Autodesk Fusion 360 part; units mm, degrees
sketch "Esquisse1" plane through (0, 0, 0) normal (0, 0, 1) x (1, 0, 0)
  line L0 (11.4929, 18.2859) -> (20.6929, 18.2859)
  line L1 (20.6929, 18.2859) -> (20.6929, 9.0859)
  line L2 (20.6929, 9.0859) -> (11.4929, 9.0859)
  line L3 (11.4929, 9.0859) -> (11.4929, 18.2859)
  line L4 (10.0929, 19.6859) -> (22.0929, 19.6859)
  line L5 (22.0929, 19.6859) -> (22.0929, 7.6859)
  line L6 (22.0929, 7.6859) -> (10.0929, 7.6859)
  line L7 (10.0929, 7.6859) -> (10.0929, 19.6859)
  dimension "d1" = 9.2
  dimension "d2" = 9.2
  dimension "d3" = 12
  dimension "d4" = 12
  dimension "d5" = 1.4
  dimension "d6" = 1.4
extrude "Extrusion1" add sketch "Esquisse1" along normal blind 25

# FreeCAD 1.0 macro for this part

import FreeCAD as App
import Part
import Sketcher


def add_polygon(sketch, points):
    """Adds a closed chain of lines whose ends are joined by coincident constraints."""
    first, n = sketch.GeometryCount, len(points)
    for a, b in zip(points, points[1:] + points[:1]):
        sketch.addGeometry(Part.LineSegment(App.Vector(*a, 0), App.Vector(*b, 0)), False)
    for i in range(n):
        sketch.addConstraint(Sketcher.Constraint("Coincident", first + i, 2, first + (i + 1) % n, 1))

doc = App.newDocument("Part")
params = doc.addObject("Spreadsheet::Sheet", "Params")
for row, (alias, value) in enumerate([
    ("sketch1_width", "12 mm"),
    ("sketch1_width2", "9.2 mm"),
    ("pad1_length", "25 mm"),
], start=1):
    params.set(f"A{row}", alias)
    params.set(f"B{row}", "=" + value)
    params.setAlias(f"B{row}", alias)

body = doc.addObject("PartDesign::Body", "Body")

sketch1 = body.newObject("Sketcher::SketchObject", "Sketch")
sketch1.AttachmentSupport = (doc.getObject("XY_Plane"), [""])
sketch1.MapMode = "FlatFace"
add_polygon(sketch1, [(22.0929, 19.6859), (10.0929, 19.6859), (10.0929, 7.6859), (22.0929, 7.6859)])
add_polygon(sketch1, [(11.4929, 9.0859), (11.4929, 18.2859), (20.6929, 18.2859), (20.6929, 9.0859)])
sketch1.addConstraint(Sketcher.Constraint("Horizontal", 0))
sketch1.addConstraint(Sketcher.Constraint("Vertical", 1))
sketch1.addConstraint(Sketcher.Constraint("Horizontal", 2))
sketch1.addConstraint(Sketcher.Constraint("Vertical", 3))
sketch1.addConstraint(Sketcher.Constraint("Vertical", 4))
sketch1.addConstraint(Sketcher.Constraint("Horizontal", 5))
sketch1.addConstraint(Sketcher.Constraint("Vertical", 6))
sketch1.addConstraint(Sketcher.Constraint("Horizontal", 7))
sketch1.addConstraint(Sketcher.Constraint("Equal", 2, 1))
sketch1.addConstraint(Sketcher.Constraint("Equal", 7, 4))
sketch1.addConstraint(Sketcher.Constraint("DistanceX", 0, 2, 0, 1, 12.0))
sketch1.addConstraint(Sketcher.Constraint("DistanceX", 5, 1, 5, 2, 9.2))
sketch1.addConstraint(Sketcher.Constraint("DistanceX", 0, 2, 4, 2, 1.4))
sketch1.addConstraint(Sketcher.Constraint("DistanceY", 4, 2, 0, 2, 1.4))
sketch1.addConstraint(Sketcher.Constraint("DistanceX", -1, 1, 0, 2, 10.093))
sketch1.addConstraint(Sketcher.Constraint("DistanceY", -1, 1, 0, 2, 19.686))
sketch1.setExpression("Constraints[18]", "Params.sketch1_width")
sketch1.setExpression("Constraints[19]", "Params.sketch1_width2")
pad1 = body.newObject("PartDesign::Pad", "Pad")
pad1.Profile = sketch1
pad1.setExpression("Length", "Params.pad1_length")

doc.recompute()
